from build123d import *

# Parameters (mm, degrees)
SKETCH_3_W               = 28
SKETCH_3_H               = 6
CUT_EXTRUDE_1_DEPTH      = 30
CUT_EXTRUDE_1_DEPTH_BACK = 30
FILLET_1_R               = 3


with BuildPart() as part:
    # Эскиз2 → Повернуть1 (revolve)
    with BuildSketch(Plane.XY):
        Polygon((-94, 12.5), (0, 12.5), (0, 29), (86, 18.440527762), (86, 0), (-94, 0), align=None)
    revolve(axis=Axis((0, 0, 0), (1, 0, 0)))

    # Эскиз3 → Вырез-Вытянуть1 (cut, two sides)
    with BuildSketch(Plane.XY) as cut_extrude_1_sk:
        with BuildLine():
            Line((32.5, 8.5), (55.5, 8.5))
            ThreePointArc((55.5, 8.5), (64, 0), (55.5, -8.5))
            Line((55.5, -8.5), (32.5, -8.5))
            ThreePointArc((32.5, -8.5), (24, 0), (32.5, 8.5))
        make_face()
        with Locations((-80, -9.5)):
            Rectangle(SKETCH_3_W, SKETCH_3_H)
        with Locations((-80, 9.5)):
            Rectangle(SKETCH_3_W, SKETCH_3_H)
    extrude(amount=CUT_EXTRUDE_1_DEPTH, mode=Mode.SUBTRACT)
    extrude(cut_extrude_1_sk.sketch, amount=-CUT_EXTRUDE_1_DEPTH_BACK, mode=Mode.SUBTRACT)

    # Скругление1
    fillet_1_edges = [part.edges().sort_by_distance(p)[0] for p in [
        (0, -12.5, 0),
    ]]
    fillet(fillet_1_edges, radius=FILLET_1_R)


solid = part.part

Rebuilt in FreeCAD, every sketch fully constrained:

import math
import FreeCAD as App
import Part
import Sketcher

V = App.Vector
Q = App.Units.Quantity


def edges_at(feature, points):
    """Names of the edges that pass closest to the given points."""
    edges = feature.Shape.Edges
    near = lambda p: min(range(len(edges)), key=lambda i: edges[i].distToShape(Part.Vertex(*p))[0])
    return sorted({f"Edge{near(p) + 1}" for p in points})


def add_polygon(sketch, points):
    """Adds a closed chain of lines whose ends are joined by coincident constraints."""
    first, n = sketch.GeometryCount, len(points)
    for a, b in zip(points, points[1:] + points[:1]):
        sketch.addGeometry(Part.LineSegment(App.Vector(*a, 0), App.Vector(*b, 0)), False)
    for i in range(n):
        sketch.addConstraint(Sketcher.Constraint("Coincident", first + i, 2, first + (i + 1) % n, 1))

doc = App.newDocument("Part")
body = doc.addObject("PartDesign::Body", "Body")

sketch1 = body.newObject("Sketcher::SketchObject", "Sketch")
sketch1.AttachmentSupport = (doc.getObject("XY_Plane"), [""])
sketch1.MapMode = "FlatFace"
add_polygon(sketch1, [(0, 12.5), (-94, 12.5), (-94, 0), (86, 0), (86, 18.440528), (0, 29)])
sketch1.addConstraint([
    Sketcher.Constraint("Horizontal", 0),
    Sketcher.Constraint("Vertical", 1),
    Sketcher.Constraint("Horizontal", 2),
    Sketcher.Constraint("Vertical", 3),
    Sketcher.Constraint("Vertical", 5),
    Sketcher.Constraint("PointOnObject", 1, 2, -1),
    Sketcher.Constraint("PointOnObject", 4, 2, -2),
    Sketcher.Constraint("DistanceX", 0, 2, 0, 1, 94.0),
    Sketcher.Constraint("DistanceX", 2, 1, 2, 2, 180.0),
    Sketcher.Constraint("Angle", 4, Q("173 deg")),
    Sketcher.Constraint("DistanceY", 1, 2, 1, 1, 12.5),
    Sketcher.Constraint("DistanceY", 5, 2, 5, 1, 16.5),
])
revolution = body.newObject("PartDesign::Revolution", "Revolution")
revolution.Profile = sketch1
revolution.ReferenceAxis = (sketch1, ["H_Axis"])
revolution.Angle = 360

sketch2 = body.newObject("Sketcher::SketchObject", "Sketch001")
sketch2.AttachmentSupport = (doc.getObject("XY_Plane"), [""])
sketch2.MapMode = "FlatFace"
sketch2.addGeometry(Part.LineSegment(V(55.5, 8.5, 0), V(32.5, 8.5, 0)), False)
sketch2.addGeometry(Part.ArcOfCircle(Part.Circle(V(32.5, 0, 0), V(0, 0, 1), 8.5), math.radians(90), math.radians(270)), False)
sketch2.addGeometry(Part.LineSegment(V(32.5, -8.5, 0), V(55.5, -8.5, 0)), False)
sketch2.addGeometry(Part.ArcOfCircle(Part.Circle(V(55.5, 0, 0), V(0, 0, 1), 8.5), math.radians(-90), math.radians(90)), False)
add_polygon(sketch2, [(-94, -6.5), (-94, -12.5), (-66, -12.5), (-66, -6.5)])
add_polygon(sketch2, [(-94, 12.5), (-94, 6.5), (-66, 6.5), (-66, 12.5)])
sketch2.addConstraint([
    Sketcher.Constraint("Tangent", 0, 2, 1, 1),
    Sketcher.Constraint("Tangent", 1, 2, 2, 1),
    Sketcher.Constraint("Tangent", 2, 2, 3, 1),
    Sketcher.Constraint("Tangent", 3, 2, 0, 1),
    Sketcher.Constraint("Horizontal", 0),
    Sketcher.Constraint("Horizontal", 2),
    Sketcher.Constraint("Vertical", 4),
    Sketcher.Constraint("Horizontal", 5),
    Sketcher.Constraint("Vertical", 6),
    Sketcher.Constraint("Horizontal", 7),
    Sketcher.Constraint("Vertical", 8),
    Sketcher.Constraint("Horizontal", 9),
    Sketcher.Constraint("Vertical", 10),
    Sketcher.Constraint("Horizontal", 11),
    Sketcher.Constraint("Symmetric", 7, 2, 8, 2, -1),
    Sketcher.Constraint("Symmetric", 5, 2, 10, 2, -1),
    Sketcher.Constraint("PointOnObject", 1, 3, -1),
    Sketcher.Constraint("Radius", 1, 8.5),
    Sketcher.Constraint("DistanceX", 0, 2, 0, 1, 23.0),
    Sketcher.Constraint("DistanceX", 5, 1, 5, 2, 28.0),
    Sketcher.Constraint("DistanceY", 4, 2, 4, 1, 6.0),
    Sketcher.Constraint("DistanceX", 4, 2, -1, 1, 94.0),
    Sketcher.Constraint("DistanceY", 4, 2, 1, 2, 4.0),
    Sketcher.Constraint("DistanceX", -1, 1, 1, 3, 32.5),
])
pocket1 = body.newObject("PartDesign::Pocket", "Pocket")
pocket1.Profile = sketch2
pocket1.Type = "ThroughAll"
pocket1.Midplane = True
doc.recompute()

fillet = body.newObject("PartDesign::Fillet", "Fillet")
fillet.Base = (pocket1, edges_at(pocket1, [(0, -12.5, 0)]))
fillet.Radius = 3

doc.recompute()
